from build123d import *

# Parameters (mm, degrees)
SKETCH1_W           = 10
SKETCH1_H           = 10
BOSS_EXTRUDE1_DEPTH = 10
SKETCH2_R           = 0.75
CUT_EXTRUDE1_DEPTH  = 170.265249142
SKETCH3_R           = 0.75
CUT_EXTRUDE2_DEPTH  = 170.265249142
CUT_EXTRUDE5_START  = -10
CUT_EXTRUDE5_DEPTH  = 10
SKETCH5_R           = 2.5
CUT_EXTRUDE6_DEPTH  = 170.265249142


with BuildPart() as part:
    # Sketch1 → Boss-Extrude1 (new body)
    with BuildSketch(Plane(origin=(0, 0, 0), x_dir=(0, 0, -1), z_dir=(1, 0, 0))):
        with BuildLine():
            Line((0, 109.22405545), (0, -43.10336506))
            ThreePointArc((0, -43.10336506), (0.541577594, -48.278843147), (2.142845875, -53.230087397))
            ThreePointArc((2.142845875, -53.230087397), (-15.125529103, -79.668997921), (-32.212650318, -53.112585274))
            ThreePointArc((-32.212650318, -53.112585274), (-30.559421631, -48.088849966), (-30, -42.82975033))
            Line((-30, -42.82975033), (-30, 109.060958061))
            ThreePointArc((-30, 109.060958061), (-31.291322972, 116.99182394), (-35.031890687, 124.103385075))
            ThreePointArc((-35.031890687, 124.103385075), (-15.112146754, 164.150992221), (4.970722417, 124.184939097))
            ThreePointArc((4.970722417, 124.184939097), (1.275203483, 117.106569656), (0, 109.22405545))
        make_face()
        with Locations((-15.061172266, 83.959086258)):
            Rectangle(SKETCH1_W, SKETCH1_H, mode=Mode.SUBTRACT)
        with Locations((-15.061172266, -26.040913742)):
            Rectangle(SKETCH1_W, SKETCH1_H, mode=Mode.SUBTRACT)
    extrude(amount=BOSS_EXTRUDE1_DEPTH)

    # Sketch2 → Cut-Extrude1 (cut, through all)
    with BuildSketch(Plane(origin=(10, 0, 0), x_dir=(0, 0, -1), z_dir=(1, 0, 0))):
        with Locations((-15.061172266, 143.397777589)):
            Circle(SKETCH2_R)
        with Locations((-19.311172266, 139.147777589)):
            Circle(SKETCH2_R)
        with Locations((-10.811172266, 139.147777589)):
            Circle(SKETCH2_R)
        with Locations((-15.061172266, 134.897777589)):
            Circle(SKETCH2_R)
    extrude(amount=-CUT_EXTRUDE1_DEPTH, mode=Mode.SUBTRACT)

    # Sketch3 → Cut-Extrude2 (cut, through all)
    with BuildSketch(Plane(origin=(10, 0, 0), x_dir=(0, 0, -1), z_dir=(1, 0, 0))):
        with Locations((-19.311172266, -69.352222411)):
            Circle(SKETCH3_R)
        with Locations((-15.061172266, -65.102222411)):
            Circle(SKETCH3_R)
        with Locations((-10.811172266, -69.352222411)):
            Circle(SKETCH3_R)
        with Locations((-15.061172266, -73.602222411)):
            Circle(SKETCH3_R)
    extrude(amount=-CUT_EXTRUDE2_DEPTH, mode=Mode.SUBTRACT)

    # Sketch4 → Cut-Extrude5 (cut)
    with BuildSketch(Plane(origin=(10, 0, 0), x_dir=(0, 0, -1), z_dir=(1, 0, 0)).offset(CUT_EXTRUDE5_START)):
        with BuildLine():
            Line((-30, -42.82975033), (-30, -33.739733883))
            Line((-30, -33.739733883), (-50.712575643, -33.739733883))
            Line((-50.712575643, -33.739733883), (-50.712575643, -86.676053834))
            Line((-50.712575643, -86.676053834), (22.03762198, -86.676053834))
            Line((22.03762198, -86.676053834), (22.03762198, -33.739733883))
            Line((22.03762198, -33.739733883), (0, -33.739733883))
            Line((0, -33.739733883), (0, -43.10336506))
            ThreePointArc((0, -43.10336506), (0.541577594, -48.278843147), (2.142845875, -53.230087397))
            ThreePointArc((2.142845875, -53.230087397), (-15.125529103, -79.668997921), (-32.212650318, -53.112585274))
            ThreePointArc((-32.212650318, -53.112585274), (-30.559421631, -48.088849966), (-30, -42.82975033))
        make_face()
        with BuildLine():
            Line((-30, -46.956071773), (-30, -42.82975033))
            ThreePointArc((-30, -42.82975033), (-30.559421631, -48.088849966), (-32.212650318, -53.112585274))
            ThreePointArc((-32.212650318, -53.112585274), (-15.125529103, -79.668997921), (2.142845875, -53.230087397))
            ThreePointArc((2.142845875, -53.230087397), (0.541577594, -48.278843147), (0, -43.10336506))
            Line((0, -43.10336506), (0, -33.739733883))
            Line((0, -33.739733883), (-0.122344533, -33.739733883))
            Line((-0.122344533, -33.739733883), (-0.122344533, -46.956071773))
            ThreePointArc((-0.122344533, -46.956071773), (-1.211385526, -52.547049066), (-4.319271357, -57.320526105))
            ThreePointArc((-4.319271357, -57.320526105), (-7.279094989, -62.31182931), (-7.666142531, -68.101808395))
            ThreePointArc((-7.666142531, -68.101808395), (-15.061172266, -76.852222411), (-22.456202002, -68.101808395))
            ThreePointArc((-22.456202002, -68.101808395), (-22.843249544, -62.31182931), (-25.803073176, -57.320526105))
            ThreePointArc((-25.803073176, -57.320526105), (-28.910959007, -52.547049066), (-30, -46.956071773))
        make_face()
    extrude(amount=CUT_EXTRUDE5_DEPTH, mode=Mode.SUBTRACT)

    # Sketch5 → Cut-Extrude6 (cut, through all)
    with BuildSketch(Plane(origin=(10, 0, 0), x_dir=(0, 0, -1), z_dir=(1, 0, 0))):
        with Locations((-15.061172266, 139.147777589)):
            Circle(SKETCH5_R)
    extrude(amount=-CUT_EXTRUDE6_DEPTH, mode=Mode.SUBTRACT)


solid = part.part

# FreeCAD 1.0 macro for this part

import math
import FreeCAD as App
import Part
import Sketcher


def add_polygon(sketch, points):
    """Adds a closed chain of lines whose ends are joined by coincident constraints."""
    first, n = sketch.GeometryCount, len(points)
    for a, b in zip(points, points[1:] + points[:1]):
        sketch.addGeometry(Part.LineSegment(App.Vector(*a, 0), App.Vector(*b, 0)), False)
    for i in range(n):
        sketch.addConstraint(Sketcher.Constraint("Coincident", first + i, 2, first + (i + 1) % n, 1))

doc = App.newDocument("Part")
body = doc.addObject("PartDesign::Body", "Body")

sketch1 = body.newObject("Sketcher::SketchObject", "Sketch")
sketch1.AttachmentSupport = (doc.getObject("YZ_Plane"), [""])
sketch1.MapMode = "FlatFace"
sketch1.addGeometry(Part.LineSegment(App.Vector(-43, 0, 0), App.Vector(109, 0, 0)), False)
sketch1.addGeometry(Part.ArcOfCircle(Part.Circle(App.Vector(109, -25, 0), App.Vector(0, 0, 1), 25), math.radians(53), math.radians(90)), False)
sketch1.addGeometry(Part.ArcOfCircle(Part.Circle(App.Vector(139, 15, 0), App.Vector(0, 0, 1), 25), math.radians(-127), math.radians(127)), False)
sketch1.addGeometry(Part.ArcOfCircle(Part.Circle(App.Vector(109, 55, 0), App.Vector(0, 0, 1), 25), math.radians(-90), math.radians(-53)), False)
sketch1.addGeometry(Part.LineSegment(App.Vector(109, 30, 0), App.Vector(-43, 30, 0)), False)
sketch1.addGeometry(Part.ArcOfCircle(Part.Circle(App.Vector(-43, 55, 0), App.Vector(0, 0, 1), 25), math.radians(-114), math.radians(-90)), False)
sketch1.addGeometry(Part.ArcOfCircle(Part.Circle(App.Vector(-61, 15, 0), App.Vector(0, 0, 1), 19), math.radians(66), math.radians(294)), False)
sketch1.addGeometry(Part.ArcOfCircle(Part.Circle(App.Vector(-43, -25, 0), App.Vector(0, 0, 1), 25), math.radians(90), math.radians(114)), False)
add_polygon(sketch1, [(-31, 20), (-21, 20), (-21, 10), (-31, 10)])
add_polygon(sketch1, [(79, 20), (89, 20), (89, 10), (79, 10)])
sketch1.addConstraint([
    Sketcher.Constraint("Tangent", 0, 2, 1, 2),
    Sketcher.Constraint("Tangent", 1, 1, 2, 1),
    Sketcher.Constraint("Tangent", 2, 2, 3, 2),
    Sketcher.Constraint("Tangent", 3, 1, 4, 1),
    Sketcher.Constraint("Tangent", 4, 2, 5, 2),
    Sketcher.Constraint("Tangent", 5, 1, 6, 1),
    Sketcher.Constraint("Tangent", 6, 2, 7, 2),
    Sketcher.Constraint("Tangent", 7, 1, 0, 1),
    Sketcher.Constraint("Horizontal", 0),
    Sketcher.Constraint("Horizontal", 4),
    Sketcher.Constraint("Horizontal", 8),
    Sketcher.Constraint("Vertical", 9),
    Sketcher.Constraint("Horizontal", 10),
    Sketcher.Constraint("Vertical", 11),
    Sketcher.Constraint("Horizontal", 12),
    Sketcher.Constraint("Vertical", 13),
    Sketcher.Constraint("Horizontal", 14),
    Sketcher.Constraint("Vertical", 15),
    Sketcher.Constraint("Equal", 1, 3),
    Sketcher.Constraint("Equal", 3, 5),
    Sketcher.Constraint("Equal", 5, 7),
    Sketcher.Constraint("PointOnObject", 0, 2, -1),
    Sketcher.Constraint("Horizontal", 2, 3, 6, 3),
    Sketcher.Constraint("Horizontal", 11, 2, 12, 2),
    Sketcher.Constraint("Horizontal", 10, 2, 13, 2),
    Sketcher.Constraint("Equal", 10, 12),
    Sketcher.Constraint("Equal", 14, 9),
    Sketcher.Constraint("Radius", 1, 25.0),
    Sketcher.Constraint("DistanceX", 8, 1, 8, 2, 10.0),
    Sketcher.Constraint("DistanceY", -1, 1, 3, 3, 55.0),
    Sketcher.Constraint("DistanceX", 6, 3, 2, 3, 200.0),
    Sketcher.Constraint("DistanceY", 6, 3, 8, 2, 5.0),
    Sketcher.Constraint("Radius", 2, 25.003267),
    Sketcher.Constraint("Radius", 6, 18.816886),
    Sketcher.Constraint("DistanceX", 0, 1, 0, 2, 152.327421),
    Sketcher.Constraint("DistanceX", 12, 2, 2, 2, 35.144299),
    Sketcher.Constraint("DistanceX", -1, 1, 3, 3, 109.060958),
    Sketcher.Constraint("DistanceX", 7, 1, 8, 2, 22.062451),
])
pad1 = body.newObject("PartDesign::Pad", "Pad")
pad1.Profile = sketch1
pad1.Length = 10

sketch2 = body.newObject("Sketcher::SketchObject", "Sketch001")
sketch2.AttachmentSupport = (doc.getObject("YZ_Plane"), [""])
sketch2.MapMode = "FlatFace"
sketch2.AttachmentOffset = App.Placement(App.Vector(0, 0, 10), App.Rotation())
sketch2.addGeometry([
    Part.Circle(App.Vector(143.4, 15.1, 0), App.Vector(0, 0, 1), 0.8),
    Part.Circle(App.Vector(139.1, 19.3, 0), App.Vector(0, 0, 1), 0.8),
    Part.Circle(App.Vector(139.1, 10.8, 0), App.Vector(0, 0, 1), 0.8),
    Part.Circle(App.Vector(134.9, 15.1, 0), App.Vector(0, 0, 1), 0.8),
], False)
sketch2.addConstraint([
    Sketcher.Constraint("Equal", 0, 1),
    Sketcher.Constraint("Equal", 1, 2),
    Sketcher.Constraint("Equal", 2, 3),
    Sketcher.Constraint("Horizontal", 0, 3, 3, 3),
    Sketcher.Constraint("Vertical", 1, 3, 2, 3),
    Sketcher.Constraint("Diameter", 0, 1.5),
    Sketcher.Constraint("DistanceY", 2, 3, 1, 3, 8.5),
    Sketcher.Constraint("DistanceX", 3, 3, 0, 3, 8.5),
    Sketcher.Constraint("DistanceX", 1, 3, 0, 3, 4.25),
    Sketcher.Constraint("DistanceY", 0, 3, 1, 3, 4.25),
    Sketcher.Constraint("DistanceX", -1, 1, 0, 3, 143.397778),
    Sketcher.Constraint("DistanceY", -1, 1, 0, 3, 15.061172),
])
pocket1 = body.newObject("PartDesign::Pocket", "Pocket")
pocket1.Profile = sketch2
pocket1.Type = "ThroughAll"

sketch3 = body.newObject("Sketcher::SketchObject", "Sketch002")
sketch3.AttachmentSupport = (doc.getObject("YZ_Plane"), [""])
sketch3.MapMode = "FlatFace"
sketch3.AttachmentOffset = App.Placement(App.Vector(0, 0, 10), App.Rotation())
sketch3.addGeometry([
    Part.Circle(App.Vector(-69.4, 19.3, 0), App.Vector(0, 0, 1), 0.8),
    Part.Circle(App.Vector(-65.1, 15.1, 0), App.Vector(0, 0, 1), 0.8),
    Part.Circle(App.Vector(-69.4, 10.8, 0), App.Vector(0, 0, 1), 0.8),
    Part.Circle(App.Vector(-73.6, 15.1, 0), App.Vector(0, 0, 1), 0.8),
], False)
sketch3.addConstraint([
    Sketcher.Constraint("Equal", 0, 1),
    Sketcher.Constraint("Equal", 1, 2),
    Sketcher.Constraint("Equal", 2, 3),
    Sketcher.Constraint("Horizontal", 1, 3, 3, 3),
    Sketcher.Constraint("Vertical", 0, 3, 2, 3),
    Sketcher.Constraint("Diameter", 0, 1.5),
    Sketcher.Constraint("DistanceY", 2, 3, 0, 3, 8.5),
    Sketcher.Constraint("DistanceX", 3, 3, 1, 3, 8.5),
    Sketcher.Constraint("DistanceX", 0, 3, 1, 3, 4.25),
    Sketcher.Constraint("DistanceY", 1, 3, 0, 3, 4.25),
    Sketcher.Constraint("DistanceX", 0, 3, -1, 1, 69.352222),
    Sketcher.Constraint("DistanceY", -1, 1, 0, 3, 19.311172),
])
pocket2 = body.newObject("PartDesign::Pocket", "Pocket001")
pocket2.Profile = sketch3
pocket2.Type = "ThroughAll"

sketch4 = body.newObject("Sketcher::SketchObject", "Sketch003")
sketch4.AttachmentSupport = (doc.getObject("YZ_Plane"), [""])
sketch4.MapMode = "FlatFace"
sketch4.addGeometry([
    Part.LineSegment(App.Vector(-34, 30, 0), App.Vector(-34, 51, 0)),
    Part.LineSegment(App.Vector(-34, 51, 0), App.Vector(-87, 51, 0)),
    Part.LineSegment(App.Vector(-87, 51, 0), App.Vector(-87, -22, 0)),
    Part.LineSegment(App.Vector(-87, -22, 0), App.Vector(-34, -22, 0)),
    Part.LineSegment(App.Vector(-34, -22, 0), App.Vector(-34, 0, 0)),
    Part.LineSegment(App.Vector(-34, 0, 0), App.Vector(-47, 0, 0)),
    Part.ArcOfCircle(Part.Circle(App.Vector(-47, 15, 0), App.Vector(0, 0, 1), 15), math.radians(-134), math.radians(-90)),
    Part.ArcOfCircle(Part.Circle(App.Vector(-66, -5, 0), App.Vector(0, 0, 1), 13), math.radians(46), math.radians(100)),
    Part.ArcOfCircle(Part.Circle(App.Vector(-69, 15, 0), App.Vector(0, 0, 1), 8), math.radians(80), math.radians(280)),
    Part.ArcOfCircle(Part.Circle(App.Vector(-66, 35, 0), App.Vector(0, 0, 1), 13), math.radians(-100), math.radians(-46)),
    Part.ArcOfCircle(Part.Circle(App.Vector(-47, 15, 0), App.Vector(0, 0, 1), 15), math.radians(90), math.radians(134)),
    Part.LineSegment(App.Vector(-47, 30, 0), App.Vector(-34, 30, 0)),
], False)
sketch4.addConstraint([
    Sketcher.Constraint("Coincident", 0, 2, 1, 1),
    Sketcher.Constraint("Coincident", 1, 2, 2, 1),
    Sketcher.Constraint("Coincident", 2, 2, 3, 1),
    Sketcher.Constraint("Coincident", 3, 2, 4, 1),
    Sketcher.Constraint("Coincident", 4, 2, 5, 1),
    Sketcher.Constraint("Tangent", 5, 2, 6, 2),
    Sketcher.Constraint("Tangent", 6, 1, 7, 1),
    Sketcher.Constraint("Tangent", 7, 2, 8, 2),
    Sketcher.Constraint("Tangent", 8, 1, 9, 1),
    Sketcher.Constraint("Tangent", 9, 2, 10, 2),
    Sketcher.Constraint("Tangent", 10, 1, 11, 1),
    Sketcher.Constraint("Coincident", 11, 2, 0, 1),
    Sketcher.Constraint("Vertical", 0),
    Sketcher.Constraint("Horizontal", 1),
    Sketcher.Constraint("Vertical", 2),
    Sketcher.Constraint("Horizontal", 3),
    Sketcher.Constraint("Vertical", 4),
    Sketcher.Constraint("Horizontal", 5),
    Sketcher.Constraint("Horizontal", 11),
    Sketcher.Constraint("Equal", 7, 9),
    Sketcher.Constraint("Equal", 6, 10),
    Sketcher.Constraint("Vertical", 7, 3, 9, 3),
    Sketcher.Constraint("Vertical", 6, 3, 10, 3),
    Sketcher.Constraint("Vertical", 0, 2, 3, 2),
    Sketcher.Constraint("Radius", 7, 12.5),
    Sketcher.Constraint("Radius", 8, 7.5),
    Sketcher.Constraint("DistanceY", -1, 1, 10, 1, 30.0),
    Sketcher.Constraint("Radius", 6, 14.896151),
    Sketcher.Constraint("DistanceX", 1, 2, 1, 1, 52.93632),
    Sketcher.Constraint("DistanceY", 6, 1, 8, 3, 10.741901),
    Sketcher.Constraint("DistanceX", 5, 2, 5, 1, 13.216338),
    Sketcher.Constraint("DistanceY", 0, 1, 0, 2, 20.712576),
    Sketcher.Constraint("DistanceY", 2, 2, 2, 1, 72.750198),
    Sketcher.Constraint("DistanceY", 4, 1, 4, 2, 22.159967),
    Sketcher.Constraint("DistanceX", 6, 3, -1, 1, 46.956072),
])
pocket3 = body.newObject("PartDesign::Pocket", "Pocket002")
pocket3.Profile = sketch4
pocket3.Length = 10
pocket3.Reversed = True

sketch5 = body.newObject("Sketcher::SketchObject", "Sketch004")
sketch5.AttachmentSupport = (doc.getObject("YZ_Plane"), [""])
sketch5.MapMode = "FlatFace"
sketch5.AttachmentOffset = App.Placement(App.Vector(0, 0, 10), App.Rotation())
sketch5.addGeometry(Part.Circle(App.Vector(139.1, 15.1, 0), App.Vector(0, 0, 1), 2.5), False)
sketch5.addConstraint([
    Sketcher.Constraint("Diameter", 0, 5.0),
    Sketcher.Constraint("DistanceX", -1, 1, 0, 3, 139.147778),
    Sketcher.Constraint("DistanceY", -1, 1, 0, 3, 15.061172),
])
pocket4 = body.newObject("PartDesign::Pocket", "Pocket003")
pocket4.Profile = sketch5
pocket4.Type = "ThroughAll"

doc.recompute()
